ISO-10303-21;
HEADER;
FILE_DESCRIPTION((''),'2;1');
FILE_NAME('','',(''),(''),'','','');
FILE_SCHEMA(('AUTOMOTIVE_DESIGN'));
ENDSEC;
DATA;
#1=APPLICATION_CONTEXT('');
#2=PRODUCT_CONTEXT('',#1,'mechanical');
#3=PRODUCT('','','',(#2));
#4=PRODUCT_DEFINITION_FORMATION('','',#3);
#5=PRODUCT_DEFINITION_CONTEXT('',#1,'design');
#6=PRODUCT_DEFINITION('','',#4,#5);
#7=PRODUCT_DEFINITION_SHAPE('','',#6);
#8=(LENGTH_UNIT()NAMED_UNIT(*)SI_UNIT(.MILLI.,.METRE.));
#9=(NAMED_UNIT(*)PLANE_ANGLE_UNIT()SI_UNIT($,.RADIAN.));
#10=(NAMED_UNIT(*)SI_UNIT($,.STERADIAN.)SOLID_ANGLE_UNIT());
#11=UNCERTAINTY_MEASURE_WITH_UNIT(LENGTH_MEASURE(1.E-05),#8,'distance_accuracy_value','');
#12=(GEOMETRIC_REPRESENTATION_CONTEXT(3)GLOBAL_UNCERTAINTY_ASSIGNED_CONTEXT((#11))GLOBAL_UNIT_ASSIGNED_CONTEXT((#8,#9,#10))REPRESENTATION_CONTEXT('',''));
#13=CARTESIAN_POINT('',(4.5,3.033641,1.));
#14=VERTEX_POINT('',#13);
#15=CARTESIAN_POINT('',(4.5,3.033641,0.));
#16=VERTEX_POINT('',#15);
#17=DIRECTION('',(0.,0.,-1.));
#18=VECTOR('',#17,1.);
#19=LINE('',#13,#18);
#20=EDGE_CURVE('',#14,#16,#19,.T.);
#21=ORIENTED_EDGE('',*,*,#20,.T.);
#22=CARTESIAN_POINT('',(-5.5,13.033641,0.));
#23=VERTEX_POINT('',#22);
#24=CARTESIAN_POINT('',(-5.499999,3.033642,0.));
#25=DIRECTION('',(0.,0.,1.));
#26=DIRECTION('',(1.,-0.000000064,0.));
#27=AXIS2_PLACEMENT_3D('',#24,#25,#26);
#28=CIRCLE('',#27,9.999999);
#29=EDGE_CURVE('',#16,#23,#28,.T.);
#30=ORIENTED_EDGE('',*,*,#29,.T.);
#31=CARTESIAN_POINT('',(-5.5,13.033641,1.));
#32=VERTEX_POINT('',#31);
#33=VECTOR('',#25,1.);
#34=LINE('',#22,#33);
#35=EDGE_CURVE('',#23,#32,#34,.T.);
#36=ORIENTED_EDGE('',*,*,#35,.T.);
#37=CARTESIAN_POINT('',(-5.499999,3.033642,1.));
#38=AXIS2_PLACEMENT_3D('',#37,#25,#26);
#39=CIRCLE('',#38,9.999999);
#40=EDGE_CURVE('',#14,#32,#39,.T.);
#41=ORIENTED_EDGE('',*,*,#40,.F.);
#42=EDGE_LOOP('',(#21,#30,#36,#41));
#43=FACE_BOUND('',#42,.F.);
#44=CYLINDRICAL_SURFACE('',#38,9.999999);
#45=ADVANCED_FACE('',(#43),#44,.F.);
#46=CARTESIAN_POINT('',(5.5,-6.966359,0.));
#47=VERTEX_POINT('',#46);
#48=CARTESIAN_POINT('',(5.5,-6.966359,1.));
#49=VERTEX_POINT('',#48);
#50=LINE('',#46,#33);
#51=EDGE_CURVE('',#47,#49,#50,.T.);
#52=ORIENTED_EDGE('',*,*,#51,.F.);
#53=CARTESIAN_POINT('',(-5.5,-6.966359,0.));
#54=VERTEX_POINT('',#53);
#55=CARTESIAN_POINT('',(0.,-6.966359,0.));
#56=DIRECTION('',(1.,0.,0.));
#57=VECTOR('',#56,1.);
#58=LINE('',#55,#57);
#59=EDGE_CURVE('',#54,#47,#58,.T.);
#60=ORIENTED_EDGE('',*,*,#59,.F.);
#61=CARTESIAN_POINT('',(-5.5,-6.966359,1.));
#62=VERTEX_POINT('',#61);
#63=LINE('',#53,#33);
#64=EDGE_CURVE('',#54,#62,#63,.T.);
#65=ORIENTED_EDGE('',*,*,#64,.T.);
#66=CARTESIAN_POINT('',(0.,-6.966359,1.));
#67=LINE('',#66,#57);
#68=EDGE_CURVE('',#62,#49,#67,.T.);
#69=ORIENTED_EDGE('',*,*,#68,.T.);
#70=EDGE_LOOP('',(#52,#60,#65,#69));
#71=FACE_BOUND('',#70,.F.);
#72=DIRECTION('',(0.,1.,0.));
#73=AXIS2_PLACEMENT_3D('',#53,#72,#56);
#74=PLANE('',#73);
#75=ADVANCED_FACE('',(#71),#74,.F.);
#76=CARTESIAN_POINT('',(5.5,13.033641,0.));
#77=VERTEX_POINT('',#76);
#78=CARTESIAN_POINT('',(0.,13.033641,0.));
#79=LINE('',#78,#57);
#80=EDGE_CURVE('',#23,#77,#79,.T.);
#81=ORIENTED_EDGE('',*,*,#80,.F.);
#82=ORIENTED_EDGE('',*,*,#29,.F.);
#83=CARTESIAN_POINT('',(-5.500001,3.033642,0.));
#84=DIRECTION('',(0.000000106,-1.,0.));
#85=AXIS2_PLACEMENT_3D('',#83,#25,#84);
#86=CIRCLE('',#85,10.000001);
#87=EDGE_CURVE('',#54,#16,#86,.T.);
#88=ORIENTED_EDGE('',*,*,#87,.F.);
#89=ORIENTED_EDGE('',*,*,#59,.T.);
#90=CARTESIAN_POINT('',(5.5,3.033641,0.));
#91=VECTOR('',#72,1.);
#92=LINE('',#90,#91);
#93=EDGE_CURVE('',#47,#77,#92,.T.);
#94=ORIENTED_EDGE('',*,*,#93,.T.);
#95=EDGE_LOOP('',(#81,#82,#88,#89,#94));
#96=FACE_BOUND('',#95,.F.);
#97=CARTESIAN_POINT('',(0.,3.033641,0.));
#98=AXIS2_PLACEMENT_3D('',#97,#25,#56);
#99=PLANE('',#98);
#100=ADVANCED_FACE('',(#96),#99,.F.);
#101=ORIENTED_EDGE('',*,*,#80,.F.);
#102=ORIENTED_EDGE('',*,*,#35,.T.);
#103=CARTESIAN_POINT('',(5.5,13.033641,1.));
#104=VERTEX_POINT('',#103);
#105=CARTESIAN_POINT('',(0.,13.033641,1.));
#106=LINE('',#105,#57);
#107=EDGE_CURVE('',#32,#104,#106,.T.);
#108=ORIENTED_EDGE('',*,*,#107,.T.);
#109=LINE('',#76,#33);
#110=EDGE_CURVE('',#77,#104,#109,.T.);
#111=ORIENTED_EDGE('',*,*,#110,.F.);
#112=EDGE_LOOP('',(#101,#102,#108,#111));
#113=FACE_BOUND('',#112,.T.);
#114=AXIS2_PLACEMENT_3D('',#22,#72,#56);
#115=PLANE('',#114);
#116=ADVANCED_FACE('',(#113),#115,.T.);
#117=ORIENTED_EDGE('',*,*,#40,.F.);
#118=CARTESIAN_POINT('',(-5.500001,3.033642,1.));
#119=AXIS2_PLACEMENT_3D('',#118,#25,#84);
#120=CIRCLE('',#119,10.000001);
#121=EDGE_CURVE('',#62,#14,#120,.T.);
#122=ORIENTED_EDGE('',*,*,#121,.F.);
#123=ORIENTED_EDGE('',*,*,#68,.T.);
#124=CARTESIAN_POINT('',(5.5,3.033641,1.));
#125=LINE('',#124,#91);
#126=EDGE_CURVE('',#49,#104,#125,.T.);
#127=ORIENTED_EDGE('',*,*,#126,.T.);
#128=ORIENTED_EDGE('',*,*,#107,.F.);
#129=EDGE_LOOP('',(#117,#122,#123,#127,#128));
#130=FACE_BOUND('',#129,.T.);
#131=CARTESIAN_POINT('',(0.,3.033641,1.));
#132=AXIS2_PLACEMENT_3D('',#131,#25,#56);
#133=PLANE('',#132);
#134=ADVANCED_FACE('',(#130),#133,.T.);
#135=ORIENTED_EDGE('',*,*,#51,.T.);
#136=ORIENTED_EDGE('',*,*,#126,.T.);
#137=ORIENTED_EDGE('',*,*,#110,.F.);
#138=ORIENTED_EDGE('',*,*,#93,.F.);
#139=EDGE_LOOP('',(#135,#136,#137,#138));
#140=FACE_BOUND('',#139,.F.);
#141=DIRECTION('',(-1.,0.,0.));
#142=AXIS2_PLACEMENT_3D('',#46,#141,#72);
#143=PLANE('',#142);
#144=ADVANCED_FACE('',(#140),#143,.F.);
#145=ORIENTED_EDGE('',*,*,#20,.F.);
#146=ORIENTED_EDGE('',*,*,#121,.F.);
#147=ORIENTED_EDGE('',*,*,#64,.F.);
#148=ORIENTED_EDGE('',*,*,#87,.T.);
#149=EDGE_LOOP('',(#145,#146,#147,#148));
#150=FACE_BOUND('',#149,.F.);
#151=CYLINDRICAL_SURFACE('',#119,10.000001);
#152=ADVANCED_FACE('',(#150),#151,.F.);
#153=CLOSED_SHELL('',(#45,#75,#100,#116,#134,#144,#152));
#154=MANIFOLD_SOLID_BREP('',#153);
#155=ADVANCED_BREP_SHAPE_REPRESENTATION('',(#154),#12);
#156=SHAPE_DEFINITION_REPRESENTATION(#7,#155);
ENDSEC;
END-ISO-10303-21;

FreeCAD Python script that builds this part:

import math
import FreeCAD as App
import Part
import Sketcher
from FreeCAD import Vector
Q = App.Units.Quantity

doc = App.newDocument("Part")
body = doc.addObject("PartDesign::Body", "Body")

# Sketch on XY plane
sketch1 = body.newObject("Sketcher::SketchObject", "Sketch")
sketch1.AttachmentSupport = (doc.getObject("XY_Plane"), [""])
sketch1.MapMode = "FlatFace"
sketch1.addGeometry(Part.LineSegment(Vector(-6, 13, 0), Vector(-6, -7, 0)), False)
sketch1.addGeometry(Part.LineSegment(Vector(-6, -7, 0), Vector(6, -7, 0)), False)
sketch1.addGeometry(Part.LineSegment(Vector(6, -7, 0), Vector(6, 13, 0)), False)
sketch1.addGeometry(Part.LineSegment(Vector(6, 13, 0), Vector(-6, 13, 0)), False)
sketch1.addConstraint(Sketcher.Constraint("Coincident", 0, 2, 1, 1))
sketch1.addConstraint(Sketcher.Constraint("Coincident", 1, 2, 2, 1))
sketch1.addConstraint(Sketcher.Constraint("Coincident", 2, 2, 3, 1))
sketch1.addConstraint(Sketcher.Constraint("Coincident", 3, 2, 0, 1))
sketch1.addConstraint(Sketcher.Constraint("Vertical", 0))
sketch1.addConstraint(Sketcher.Constraint("Horizontal", 1))
sketch1.addConstraint(Sketcher.Constraint("Vertical", 2))
sketch1.addConstraint(Sketcher.Constraint("Horizontal", 3))
sketch1.addConstraint(Sketcher.Constraint("DistanceX", 1, 1, 1, 2, Q("11 mm")))
sketch1.addConstraint(Sketcher.Constraint("DistanceY", 0, 2, 0, 1, Q("20 mm")))
sketch1.addConstraint(Sketcher.Constraint("DistanceX", 0, 2, -1, 1, Q("5.5 mm")))
sketch1.addConstraint(Sketcher.Constraint("DistanceY", 0, 2, -1, 1, Q("6.966359 mm")))
pad1 = body.newObject("PartDesign::Pad", "Pad")
pad1.Profile = sketch1
pad1.Length = 1

# Sketch on XY plane
sketch2 = body.newObject("Sketcher::SketchObject", "Sketch001")
sketch2.AttachmentSupport = (doc.getObject("XY_Plane"), [""])
sketch2.MapMode = "FlatFace"
sketch2.AttachmentOffset = App.Placement(Vector(0, 0, 1), App.Rotation())
sketch2.addGeometry(Part.ArcOfCircle(Part.Circle(Vector(-6, 3, 0), Vector(0, 0, 1), 10), math.radians(-90), math.radians(0)), False)
sketch2.addGeometry(Part.ArcOfCircle(Part.Circle(Vector(-5, 3, 0), Vector(0, 0, 1), 10), math.radians(0), math.radians(90)), False)
sketch2.addGeometry(Part.LineSegment(Vector(-6, 13, 0), Vector(-6, -7, 0)), False)
sketch2.addConstraint(Sketcher.Constraint("Tangent", 0, 2, 1, 1))
sketch2.addConstraint(Sketcher.Constraint("Coincident", 1, 2, 2, 1))
sketch2.addConstraint(Sketcher.Constraint("Coincident", 2, 2, 0, 1))
sketch2.addConstraint(Sketcher.Constraint("Vertical", 2))
sketch2.addConstraint(Sketcher.Constraint("Equal", 0, 1))
sketch2.addConstraint(Sketcher.Constraint("Horizontal", 1, 3, 0, 2))
sketch2.addConstraint(Sketcher.Constraint("Vertical", 0, 3, 1, 2))
sketch2.addConstraint(Sketcher.Constraint("Radius", 0, Q("10.000001 mm")))
sketch2.addConstraint(Sketcher.Constraint("DistanceX", 0, 3, -1, 1, Q("5.500001 mm")))
sketch2.addConstraint(Sketcher.Constraint("DistanceY", -1, 1, 1, 3, Q("3.033642 mm")))
pocket1 = body.newObject("PartDesign::Pocket", "Pocket")
pocket1.Profile = sketch2
pocket1.Length = 25.4
pocket2 = body.newObject("PartDesign::Pocket", "Pocket001")
pocket2.Profile = sketch2
pocket2.Length = 25.4

doc.recompute()
